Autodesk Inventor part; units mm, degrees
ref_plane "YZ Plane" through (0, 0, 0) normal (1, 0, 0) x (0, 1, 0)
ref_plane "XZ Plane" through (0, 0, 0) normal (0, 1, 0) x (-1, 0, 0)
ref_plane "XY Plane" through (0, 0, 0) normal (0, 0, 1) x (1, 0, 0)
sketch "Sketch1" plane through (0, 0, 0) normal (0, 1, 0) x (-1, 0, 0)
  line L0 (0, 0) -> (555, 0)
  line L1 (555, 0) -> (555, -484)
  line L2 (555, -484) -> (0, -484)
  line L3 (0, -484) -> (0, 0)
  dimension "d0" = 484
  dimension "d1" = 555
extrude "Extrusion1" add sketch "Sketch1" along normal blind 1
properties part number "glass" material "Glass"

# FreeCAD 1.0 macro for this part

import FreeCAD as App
import Part
import Sketcher
from FreeCAD import Vector


def add_polygon(sketch, points):
    """Adds a closed chain of lines whose ends are joined by coincident constraints."""
    first, n = sketch.GeometryCount, len(points)
    for a, b in zip(points, points[1:] + points[:1]):
        sketch.addGeometry(Part.LineSegment(App.Vector(*a, 0), App.Vector(*b, 0)), False)
    for i in range(n):
        sketch.addConstraint(Sketcher.Constraint("Coincident", first + i, 2, first + (i + 1) % n, 1))

doc = App.newDocument("Part")
body = doc.addObject("PartDesign::Body", "Body")

sketch1 = body.newObject("Sketcher::SketchObject", "Sketch")
sketch1.AttachmentSupport = (doc.getObject("XZ_Plane"), [""])
sketch1.MapMode = "FlatFace"
add_polygon(sketch1, [(-555, 0), (0, 0), (0, -484), (-555, -484)])
sketch1.addConstraint([
    Sketcher.Constraint("Horizontal", 0),
    Sketcher.Constraint("Vertical", 1),
    Sketcher.Constraint("Horizontal", 2),
    Sketcher.Constraint("Vertical", 3),
    Sketcher.Constraint("Coincident", 0, 2, -1, 1),
    Sketcher.Constraint("DistanceX", 0, 1, 0, 2, 555.0),
    Sketcher.Constraint("DistanceY", 1, 2, 1, 1, 484.0),
])
pad1 = body.newObject("PartDesign::Pad", "Pad")
pad1.Profile = sketch1
pad1.Length = 1
pad1.Reversed = True

doc.recompute()
